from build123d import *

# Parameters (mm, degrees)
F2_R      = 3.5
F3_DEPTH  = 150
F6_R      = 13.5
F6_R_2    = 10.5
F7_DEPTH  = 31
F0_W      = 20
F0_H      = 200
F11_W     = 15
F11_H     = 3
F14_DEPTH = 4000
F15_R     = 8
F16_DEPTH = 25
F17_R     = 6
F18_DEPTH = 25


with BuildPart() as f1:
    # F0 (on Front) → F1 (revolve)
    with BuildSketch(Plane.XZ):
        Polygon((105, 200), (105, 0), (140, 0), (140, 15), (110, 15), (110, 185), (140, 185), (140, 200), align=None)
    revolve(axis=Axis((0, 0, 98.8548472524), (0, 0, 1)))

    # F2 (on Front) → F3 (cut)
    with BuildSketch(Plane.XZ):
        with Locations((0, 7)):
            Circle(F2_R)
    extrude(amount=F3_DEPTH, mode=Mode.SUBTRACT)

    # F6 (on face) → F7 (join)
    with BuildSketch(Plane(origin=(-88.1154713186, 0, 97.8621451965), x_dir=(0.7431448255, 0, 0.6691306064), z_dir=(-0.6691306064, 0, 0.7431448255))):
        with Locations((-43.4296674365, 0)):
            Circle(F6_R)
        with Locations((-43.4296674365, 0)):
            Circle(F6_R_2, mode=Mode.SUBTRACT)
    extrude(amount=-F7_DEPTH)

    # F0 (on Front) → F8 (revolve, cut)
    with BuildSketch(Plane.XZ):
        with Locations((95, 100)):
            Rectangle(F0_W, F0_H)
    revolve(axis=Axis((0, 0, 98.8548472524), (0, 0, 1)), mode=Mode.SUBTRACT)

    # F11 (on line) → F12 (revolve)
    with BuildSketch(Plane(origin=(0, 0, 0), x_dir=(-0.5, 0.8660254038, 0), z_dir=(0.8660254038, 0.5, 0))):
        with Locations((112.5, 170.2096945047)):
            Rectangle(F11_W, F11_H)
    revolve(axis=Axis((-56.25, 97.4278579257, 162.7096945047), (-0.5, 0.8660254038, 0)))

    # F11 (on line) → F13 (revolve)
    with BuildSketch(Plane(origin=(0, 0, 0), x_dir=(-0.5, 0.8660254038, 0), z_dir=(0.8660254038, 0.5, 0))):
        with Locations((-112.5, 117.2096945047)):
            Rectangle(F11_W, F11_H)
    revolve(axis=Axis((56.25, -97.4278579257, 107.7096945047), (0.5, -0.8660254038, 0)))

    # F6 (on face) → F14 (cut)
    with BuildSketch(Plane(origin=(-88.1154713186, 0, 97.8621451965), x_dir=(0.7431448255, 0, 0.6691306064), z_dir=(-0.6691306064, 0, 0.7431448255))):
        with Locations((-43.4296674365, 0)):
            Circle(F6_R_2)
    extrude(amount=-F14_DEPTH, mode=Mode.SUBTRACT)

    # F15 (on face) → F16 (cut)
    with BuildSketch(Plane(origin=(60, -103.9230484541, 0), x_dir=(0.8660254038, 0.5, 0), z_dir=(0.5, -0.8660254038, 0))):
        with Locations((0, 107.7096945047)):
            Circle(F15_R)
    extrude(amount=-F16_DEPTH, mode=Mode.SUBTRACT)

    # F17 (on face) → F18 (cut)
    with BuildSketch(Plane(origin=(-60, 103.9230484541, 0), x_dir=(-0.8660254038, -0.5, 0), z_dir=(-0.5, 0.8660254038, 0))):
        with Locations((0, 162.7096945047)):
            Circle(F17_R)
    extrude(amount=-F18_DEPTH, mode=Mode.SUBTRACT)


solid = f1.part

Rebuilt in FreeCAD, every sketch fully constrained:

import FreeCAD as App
import Part
import Sketcher
from FreeCAD import Vector
Q = App.Units.Quantity

doc = App.newDocument("Part")
body = doc.addObject("PartDesign::Body", "Body")

# Sketch on XZ plane
sketch1 = body.newObject("Sketcher::SketchObject", "Sketch")
sketch1.AttachmentSupport = (doc.getObject("XZ_Plane"), [""])
sketch1.MapMode = "FlatFace"
sketch1.addGeometry([
    Part.LineSegment(Vector(105, 200, 0), Vector(105, 0, 0)),  # 0
    Part.LineSegment(Vector(105, 0, 0), Vector(140, 0, 0)),  # 1
    Part.LineSegment(Vector(140, 0, 0), Vector(140, 15, 0)),  # 2
    Part.LineSegment(Vector(140, 15, 0), Vector(110, 15, 0)),  # 3
    Part.LineSegment(Vector(110, 15, 0), Vector(110, 185, 0)),  # 4
    Part.LineSegment(Vector(110, 185, 0), Vector(140, 185, 0)),  # 5
    Part.LineSegment(Vector(140, 185, 0), Vector(140, 200, 0)),  # 6
    Part.LineSegment(Vector(140, 200, 0), Vector(105, 200, 0)),  # 7
], False)
sketch1.addConstraint([
    Sketcher.Constraint("Coincident", 0, 2, 1, 1),
    Sketcher.Constraint("Coincident", 1, 2, 2, 1),
    Sketcher.Constraint("Coincident", 2, 2, 3, 1),
    Sketcher.Constraint("Coincident", 3, 2, 4, 1),
    Sketcher.Constraint("Coincident", 4, 2, 5, 1),
    Sketcher.Constraint("Coincident", 5, 2, 6, 1),
    Sketcher.Constraint("Coincident", 6, 2, 7, 1),
    Sketcher.Constraint("Coincident", 7, 2, 0, 1),
    Sketcher.Constraint("Vertical", 0),
    Sketcher.Constraint("Horizontal", 1),
    Sketcher.Constraint("Vertical", 2),
    Sketcher.Constraint("Horizontal", 3),
    Sketcher.Constraint("Vertical", 4),
    Sketcher.Constraint("Horizontal", 5),
    Sketcher.Constraint("Vertical", 6),
    Sketcher.Constraint("Horizontal", 7),
    Sketcher.Constraint("PointOnObject", 0, 2, -1),
    Sketcher.Constraint("Vertical", 2, 2, 5, 2),
    Sketcher.Constraint("Equal", 2, 6),
    Sketcher.Constraint("DistanceX", 1, 1, 1, 2, Q("35 mm")),
    Sketcher.Constraint("DistanceX", 3, 2, 3, 1, Q("30 mm")),
    Sketcher.Constraint("DistanceY", 0, 2, 0, 1, Q("200 mm")),
    Sketcher.Constraint("DistanceY", 2, 1, 2, 2, Q("15 mm")),
    Sketcher.Constraint("DistanceX", -1, 1, 0, 2, Q("105 mm")),
])
revolution = body.newObject("PartDesign::Revolution", "Revolution")
revolution.Profile = sketch1
revolution.ReferenceAxis = (sketch1, ["V_Axis"])
revolution.Angle = 360

# Sketch on XZ plane
sketch2 = body.newObject("Sketcher::SketchObject", "Sketch001")
sketch2.AttachmentSupport = (doc.getObject("XZ_Plane"), [""])
sketch2.MapMode = "FlatFace"
sketch2.addGeometry(Part.Circle(Vector(0, 7, 0), Vector(0, 0, 1), 3.5), False)
sketch2.addConstraint([
    Sketcher.Constraint("PointOnObject", 0, 3, -2),
    Sketcher.Constraint("Diameter", 0, Q("7 mm")),
    Sketcher.Constraint("DistanceY", -1, 1, 0, 3, Q("7 mm")),
])
pocket1 = body.newObject("PartDesign::Pocket", "Pocket")
pocket1.Profile = sketch2
pocket1.Length = 150
pocket1.Reversed = True

# Sketch on an angled plane
sketch3 = body.newObject("Sketcher::SketchObject", "Sketch002")
sketch3.Placement = App.Placement(Vector(-88.115471, 0, 97.862145), App.Rotation(Vector(0.743144825, 0, 0.669130606), Vector(0, 0.999999999, 0), Vector(-0.669130606, 0, 0.743144825), "ZXY"))
sketch3.addGeometry([
    Part.Circle(Vector(-43.429667, 0, 0), Vector(0, 0, 1), 13.5),
    Part.Circle(Vector(-43.429667, 0, 0), Vector(0, 0, 1), 10.5),
], False)
sketch3.addConstraint([
    Sketcher.Constraint("Coincident", 1, 3, 0, 3),
    Sketcher.Constraint("PointOnObject", 0, 3, -1),
    Sketcher.Constraint("Diameter", 0, Q("27 mm")),
    Sketcher.Constraint("Diameter", 1, Q("21 mm")),
    Sketcher.Constraint("DistanceX", 0, 3, -1, 1, Q("43.429667 mm")),
])
pad1 = body.newObject("PartDesign::Pad", "Pad")
pad1.Profile = sketch3
pad1.Length = 31
pad1.Reversed = True

# Sketch on XZ plane
sketch4 = body.newObject("Sketcher::SketchObject", "Sketch003")
sketch4.AttachmentSupport = (doc.getObject("XZ_Plane"), [""])
sketch4.MapMode = "FlatFace"
sketch4.addGeometry([
    Part.LineSegment(Vector(85, 200, 0), Vector(85, 0, 0)),
    Part.LineSegment(Vector(85, 0, 0), Vector(105, 0, 0)),
    Part.LineSegment(Vector(105, 0, 0), Vector(105, 200, 0)),
    Part.LineSegment(Vector(105, 200, 0), Vector(85, 200, 0)),
], False)
sketch4.addConstraint([
    Sketcher.Constraint("Coincident", 0, 2, 1, 1),
    Sketcher.Constraint("Coincident", 1, 2, 2, 1),
    Sketcher.Constraint("Coincident", 2, 2, 3, 1),
    Sketcher.Constraint("Coincident", 3, 2, 0, 1),
    Sketcher.Constraint("Vertical", 0),
    Sketcher.Constraint("Horizontal", 1),
    Sketcher.Constraint("Vertical", 2),
    Sketcher.Constraint("Horizontal", 3),
    Sketcher.Constraint("PointOnObject", 0, 2, -1),
    Sketcher.Constraint("DistanceX", 1, 1, 1, 2, Q("20 mm")),
    Sketcher.Constraint("DistanceY", 0, 2, 0, 1, Q("200 mm")),
    Sketcher.Constraint("DistanceX", -1, 1, 0, 2, Q("85 mm")),
])
groove = body.newObject("PartDesign::Groove", "Groove")
groove.Profile = sketch4
groove.ReferenceAxis = (sketch4, ["V_Axis"])
groove.Angle = 360

# Sketch on an angled plane
sketch5 = body.newObject("Sketcher::SketchObject", "Sketch004")
sketch5.Placement = App.Placement(Vector(0, 0, 0), App.Rotation(Vector(-0.5, 0.866025404, 0), Vector(0, 0, 1), Vector(0.866025404, 0.5, 0), "ZXY"))
sketch5.addGeometry([
    Part.LineSegment(Vector(105, 171.709695, 0), Vector(105, 168.709695, 0)),
    Part.LineSegment(Vector(105, 168.709695, 0), Vector(120, 168.709695, 0)),
    Part.LineSegment(Vector(120, 168.709695, 0), Vector(120, 171.709695, 0)),
    Part.LineSegment(Vector(120, 171.709695, 0), Vector(105, 171.709695, 0)),
], False)
sketch5.addGeometry(Part.LineSegment(Vector(105, 162.709695, 0), Vector(120, 162.709695, 0)), True)  # axis
sketch5.addConstraint([
    Sketcher.Constraint("Coincident", 0, 2, 1, 1),
    Sketcher.Constraint("Coincident", 1, 2, 2, 1),
    Sketcher.Constraint("Coincident", 2, 2, 3, 1),
    Sketcher.Constraint("Coincident", 3, 2, 0, 1),
    Sketcher.Constraint("Vertical", 0),
    Sketcher.Constraint("Horizontal", 1),
    Sketcher.Constraint("Vertical", 2),
    Sketcher.Constraint("Horizontal", 3),
    Sketcher.Constraint("Horizontal", 4),
    Sketcher.Constraint("Vertical", 3, 2, 4, 1),
    Sketcher.Constraint("Vertical", 2, 2, 4, 2),
    Sketcher.Constraint("DistanceX", 1, 1, 1, 2, Q("15 mm")),
    Sketcher.Constraint("DistanceY", 0, 2, 0, 1, Q("3 mm")),
    Sketcher.Constraint("DistanceX", -1, 1, 0, 2, Q("105 mm")),
    Sketcher.Constraint("DistanceY", 4, 1, 0, 2, Q("6 mm")),
    Sketcher.Constraint("DistanceY", -1, 1, 0, 2, Q("168.709695 mm")),
])
revolution2 = body.newObject("PartDesign::Revolution", "Revolution001")
revolution2.Profile = sketch5
revolution2.ReferenceAxis = (sketch5, ["Axis0"])
revolution2.Angle = 360

# Sketch on an angled plane
sketch6 = body.newObject("Sketcher::SketchObject", "Sketch005")
sketch6.Placement = App.Placement(Vector(0, 0, 0), App.Rotation(Vector(-0.5, 0.866025404, 0), Vector(0, 0, 1), Vector(0.866025404, 0.5, 0), "ZXY"))
sketch6.addGeometry([
    Part.LineSegment(Vector(-120, 118.709695, 0), Vector(-120, 115.709695, 0)),
    Part.LineSegment(Vector(-120, 115.709695, 0), Vector(-105, 115.709695, 0)),
    Part.LineSegment(Vector(-105, 115.709695, 0), Vector(-105, 118.709695, 0)),
    Part.LineSegment(Vector(-105, 118.709695, 0), Vector(-120, 118.709695, 0)),
], False)
sketch6.addGeometry(Part.LineSegment(Vector(-105, 107.709695, 0), Vector(-120, 107.709695, 0)), True)  # axis
sketch6.addConstraint([
    Sketcher.Constraint("Coincident", 0, 2, 1, 1),
    Sketcher.Constraint("Coincident", 1, 2, 2, 1),
    Sketcher.Constraint("Coincident", 2, 2, 3, 1),
    Sketcher.Constraint("Coincident", 3, 2, 0, 1),
    Sketcher.Constraint("Vertical", 0),
    Sketcher.Constraint("Horizontal", 1),
    Sketcher.Constraint("Vertical", 2),
    Sketcher.Constraint("Horizontal", 3),
    Sketcher.Constraint("Horizontal", 4),
    Sketcher.Constraint("Vertical", 2, 2, 4, 1),
    Sketcher.Constraint("Vertical", 3, 2, 4, 2),
    Sketcher.Constraint("DistanceX", 1, 1, 1, 2, Q("15 mm")),
    Sketcher.Constraint("DistanceY", 0, 2, 0, 1, Q("3 mm")),
    Sketcher.Constraint("DistanceX", 0, 2, -1, 1, Q("120 mm")),
    Sketcher.Constraint("DistanceY", 4, 1, 1, 2, Q("8 mm")),
    Sketcher.Constraint("DistanceY", -1, 1, 0, 2, Q("115.709695 mm")),
])
revolution3 = body.newObject("PartDesign::Revolution", "Revolution002")
revolution3.Profile = sketch6
revolution3.ReferenceAxis = (sketch6, ["Axis0"])
revolution3.Angle = 360

# Sketch on an angled plane
sketch7 = body.newObject("Sketcher::SketchObject", "Sketch006")
sketch7.Placement = App.Placement(Vector(-88.115471, 0, 97.862145), App.Rotation(Vector(0.743144825, 0, 0.669130606), Vector(0, 0.999999999, 0), Vector(-0.669130606, 0, 0.743144825), "ZXY"))
sketch7.addGeometry(Part.Circle(Vector(-43.429667, 0, 0), Vector(0, 0, 1), 10.5), False)
sketch7.addConstraint([
    Sketcher.Constraint("PointOnObject", 0, 3, -1),
    Sketcher.Constraint("Diameter", 0, Q("21 mm")),
    Sketcher.Constraint("DistanceX", 0, 3, -1, 1, Q("43.429667 mm")),
])
pocket2 = body.newObject("PartDesign::Pocket", "Pocket001")
pocket2.Profile = sketch7
pocket2.Length = 4000

# Sketch on an angled plane
sketch8 = body.newObject("Sketcher::SketchObject", "Sketch007")
sketch8.Placement = App.Placement(Vector(60, -103.923048, 0), App.Rotation(Vector(0.866025404, 0.5, 0), Vector(0, 0, 1), Vector(0.5, -0.866025404, 0), "ZXY"))
sketch8.addGeometry(Part.Circle(Vector(0, 107.709695, 0), Vector(0, 0, 1), 8), False)
sketch8.addConstraint([
    Sketcher.Constraint("PointOnObject", 0, 3, -2),
    Sketcher.Constraint("Diameter", 0, Q("16 mm")),
    Sketcher.Constraint("DistanceY", -1, 1, 0, 3, Q("107.709695 mm")),
])
pocket3 = body.newObject("PartDesign::Pocket", "Pocket002")
pocket3.Profile = sketch8
pocket3.Length = 25

# Sketch on an angled plane
sketch9 = body.newObject("Sketcher::SketchObject", "Sketch008")
sketch9.Placement = App.Placement(Vector(-60, 103.923048, 0), App.Rotation(Vector(-0.866025404, -0.5, 0), Vector(0, 0, 1), Vector(-0.5, 0.866025404, 0), "ZXY"))
sketch9.addGeometry(Part.Circle(Vector(0, 162.709695, 0), Vector(0, 0, 1), 6), False)
sketch9.addConstraint([
    Sketcher.Constraint("PointOnObject", 0, 3, -2),
    Sketcher.Constraint("Diameter", 0, Q("12 mm")),
    Sketcher.Constraint("DistanceY", -1, 1, 0, 3, Q("162.709695 mm")),
])
pocket4 = body.newObject("PartDesign::Pocket", "Pocket003")
pocket4.Profile = sketch9
pocket4.Length = 25

doc.recompute()
